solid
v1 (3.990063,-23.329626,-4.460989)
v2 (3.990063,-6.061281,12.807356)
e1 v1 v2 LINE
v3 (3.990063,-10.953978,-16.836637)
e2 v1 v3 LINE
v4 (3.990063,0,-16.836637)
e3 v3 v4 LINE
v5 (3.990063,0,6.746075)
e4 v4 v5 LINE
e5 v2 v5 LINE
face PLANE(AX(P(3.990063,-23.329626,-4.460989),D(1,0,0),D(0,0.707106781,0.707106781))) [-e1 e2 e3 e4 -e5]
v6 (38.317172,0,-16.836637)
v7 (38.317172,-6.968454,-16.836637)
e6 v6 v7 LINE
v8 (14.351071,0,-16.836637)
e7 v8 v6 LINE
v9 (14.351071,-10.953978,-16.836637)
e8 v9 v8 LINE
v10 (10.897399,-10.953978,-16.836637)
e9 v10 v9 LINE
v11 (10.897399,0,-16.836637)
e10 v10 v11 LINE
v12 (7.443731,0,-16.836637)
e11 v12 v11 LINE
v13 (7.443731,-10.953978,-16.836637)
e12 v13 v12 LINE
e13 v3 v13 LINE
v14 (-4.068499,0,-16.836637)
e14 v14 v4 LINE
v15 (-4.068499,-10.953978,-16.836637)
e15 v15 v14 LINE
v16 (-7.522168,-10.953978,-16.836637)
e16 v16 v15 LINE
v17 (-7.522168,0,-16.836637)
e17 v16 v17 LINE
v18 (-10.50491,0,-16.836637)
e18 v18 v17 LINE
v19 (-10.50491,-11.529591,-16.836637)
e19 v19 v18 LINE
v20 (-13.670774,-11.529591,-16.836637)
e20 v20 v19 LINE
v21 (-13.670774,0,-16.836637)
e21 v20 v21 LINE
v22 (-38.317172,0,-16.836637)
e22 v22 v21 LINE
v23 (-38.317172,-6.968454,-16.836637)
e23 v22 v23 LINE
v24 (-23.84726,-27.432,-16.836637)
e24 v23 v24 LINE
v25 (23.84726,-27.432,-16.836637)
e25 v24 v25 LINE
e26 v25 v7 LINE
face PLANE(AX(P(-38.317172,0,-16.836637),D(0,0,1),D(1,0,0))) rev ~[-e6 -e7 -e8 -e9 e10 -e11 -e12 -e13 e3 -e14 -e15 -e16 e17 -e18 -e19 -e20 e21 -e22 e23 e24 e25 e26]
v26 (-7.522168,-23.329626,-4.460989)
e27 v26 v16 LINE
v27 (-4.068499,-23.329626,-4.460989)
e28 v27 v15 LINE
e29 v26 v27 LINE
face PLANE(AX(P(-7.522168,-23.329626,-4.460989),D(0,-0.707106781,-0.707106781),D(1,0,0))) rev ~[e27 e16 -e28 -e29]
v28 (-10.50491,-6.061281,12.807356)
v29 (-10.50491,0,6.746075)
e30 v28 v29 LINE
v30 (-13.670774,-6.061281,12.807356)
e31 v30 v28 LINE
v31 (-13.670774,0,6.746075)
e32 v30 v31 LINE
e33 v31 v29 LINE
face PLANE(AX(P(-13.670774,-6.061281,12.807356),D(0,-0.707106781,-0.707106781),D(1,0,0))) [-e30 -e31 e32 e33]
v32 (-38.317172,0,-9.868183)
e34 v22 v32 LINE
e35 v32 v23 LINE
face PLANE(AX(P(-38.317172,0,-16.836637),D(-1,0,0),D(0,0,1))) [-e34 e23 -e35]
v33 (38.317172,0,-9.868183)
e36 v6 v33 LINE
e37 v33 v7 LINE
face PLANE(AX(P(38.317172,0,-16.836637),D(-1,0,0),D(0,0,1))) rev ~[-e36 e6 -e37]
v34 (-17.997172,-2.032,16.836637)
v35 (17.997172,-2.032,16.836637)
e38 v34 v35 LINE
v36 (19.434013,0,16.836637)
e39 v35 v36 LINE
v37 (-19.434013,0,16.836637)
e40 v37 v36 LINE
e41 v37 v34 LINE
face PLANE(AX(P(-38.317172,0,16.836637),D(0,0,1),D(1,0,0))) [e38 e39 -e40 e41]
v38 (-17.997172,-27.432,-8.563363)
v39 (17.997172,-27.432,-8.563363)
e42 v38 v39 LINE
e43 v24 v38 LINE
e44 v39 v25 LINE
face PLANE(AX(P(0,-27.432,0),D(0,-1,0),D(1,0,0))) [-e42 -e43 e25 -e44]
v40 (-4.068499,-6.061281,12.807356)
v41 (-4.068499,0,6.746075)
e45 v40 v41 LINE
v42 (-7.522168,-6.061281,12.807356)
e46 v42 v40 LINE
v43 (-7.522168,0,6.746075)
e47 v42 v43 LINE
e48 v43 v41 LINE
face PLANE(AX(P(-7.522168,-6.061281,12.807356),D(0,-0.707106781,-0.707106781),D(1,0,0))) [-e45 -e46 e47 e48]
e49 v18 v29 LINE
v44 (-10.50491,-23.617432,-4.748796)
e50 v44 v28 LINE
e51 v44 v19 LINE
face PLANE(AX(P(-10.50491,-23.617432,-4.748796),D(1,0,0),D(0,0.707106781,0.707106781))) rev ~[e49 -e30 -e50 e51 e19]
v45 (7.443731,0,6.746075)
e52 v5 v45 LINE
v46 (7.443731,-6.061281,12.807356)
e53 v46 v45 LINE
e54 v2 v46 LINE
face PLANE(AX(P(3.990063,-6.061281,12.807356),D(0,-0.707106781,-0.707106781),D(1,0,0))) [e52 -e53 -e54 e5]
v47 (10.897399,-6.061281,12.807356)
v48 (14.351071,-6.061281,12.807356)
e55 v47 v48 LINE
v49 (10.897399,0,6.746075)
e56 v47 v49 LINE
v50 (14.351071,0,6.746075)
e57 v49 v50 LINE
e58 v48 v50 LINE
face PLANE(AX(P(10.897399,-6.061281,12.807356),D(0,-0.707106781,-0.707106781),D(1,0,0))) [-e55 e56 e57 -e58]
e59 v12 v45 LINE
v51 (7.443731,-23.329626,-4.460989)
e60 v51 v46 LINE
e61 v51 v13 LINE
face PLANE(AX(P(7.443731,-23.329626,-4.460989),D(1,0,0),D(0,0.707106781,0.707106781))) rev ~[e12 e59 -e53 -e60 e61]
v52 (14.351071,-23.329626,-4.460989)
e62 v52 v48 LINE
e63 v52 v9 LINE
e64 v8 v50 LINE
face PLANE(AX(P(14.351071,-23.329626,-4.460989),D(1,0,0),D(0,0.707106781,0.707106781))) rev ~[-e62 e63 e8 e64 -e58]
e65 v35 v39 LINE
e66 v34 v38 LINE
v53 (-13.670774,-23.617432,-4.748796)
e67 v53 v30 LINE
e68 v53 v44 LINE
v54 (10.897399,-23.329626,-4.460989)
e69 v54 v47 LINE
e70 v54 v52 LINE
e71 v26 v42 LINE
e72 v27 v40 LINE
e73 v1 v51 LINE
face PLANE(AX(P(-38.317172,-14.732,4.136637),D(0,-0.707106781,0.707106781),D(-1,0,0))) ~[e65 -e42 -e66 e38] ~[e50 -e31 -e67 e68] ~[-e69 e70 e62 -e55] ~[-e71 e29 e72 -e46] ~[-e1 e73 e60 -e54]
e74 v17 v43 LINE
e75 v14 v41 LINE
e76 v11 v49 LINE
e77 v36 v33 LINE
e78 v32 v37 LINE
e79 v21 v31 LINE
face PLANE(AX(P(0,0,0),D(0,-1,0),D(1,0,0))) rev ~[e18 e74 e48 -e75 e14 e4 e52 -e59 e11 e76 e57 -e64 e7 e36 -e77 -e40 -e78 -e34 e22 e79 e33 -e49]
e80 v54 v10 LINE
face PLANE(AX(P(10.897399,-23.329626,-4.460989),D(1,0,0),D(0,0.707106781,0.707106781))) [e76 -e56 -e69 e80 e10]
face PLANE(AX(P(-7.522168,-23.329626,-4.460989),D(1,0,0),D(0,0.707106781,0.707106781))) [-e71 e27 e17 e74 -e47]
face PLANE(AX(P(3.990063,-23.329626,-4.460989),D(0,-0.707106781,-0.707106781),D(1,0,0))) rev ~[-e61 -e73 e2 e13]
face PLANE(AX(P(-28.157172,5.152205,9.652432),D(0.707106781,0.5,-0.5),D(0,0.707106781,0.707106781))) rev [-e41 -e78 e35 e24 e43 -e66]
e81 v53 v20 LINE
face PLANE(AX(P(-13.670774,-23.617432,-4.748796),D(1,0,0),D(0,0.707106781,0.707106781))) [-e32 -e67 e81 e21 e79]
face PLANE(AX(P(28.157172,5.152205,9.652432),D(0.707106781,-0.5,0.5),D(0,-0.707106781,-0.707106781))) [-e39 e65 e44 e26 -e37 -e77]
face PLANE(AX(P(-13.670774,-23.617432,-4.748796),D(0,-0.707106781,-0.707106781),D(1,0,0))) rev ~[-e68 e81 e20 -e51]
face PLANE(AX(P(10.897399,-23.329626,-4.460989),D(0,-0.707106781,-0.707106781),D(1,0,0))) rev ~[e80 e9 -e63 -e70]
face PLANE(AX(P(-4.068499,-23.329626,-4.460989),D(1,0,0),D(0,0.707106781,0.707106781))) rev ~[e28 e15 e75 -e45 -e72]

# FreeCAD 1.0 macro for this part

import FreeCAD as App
import Part
import Sketcher
Q = App.Units.Quantity


def edges_at(feature, points):
    """Names of the edges that pass closest to the given points."""
    edges = feature.Shape.Edges
    near = lambda p: min(range(len(edges)), key=lambda i: edges[i].distToShape(Part.Vertex(*p))[0])
    return sorted({f"Edge{near(p) + 1}" for p in points})

doc = App.newDocument("Part")
params = doc.addObject("Spreadsheet::Sheet", "Params")
for row, (alias, value) in enumerate([
    ("pad1_length", "1.08 in"),
    ("chamfer_size", "1 in"),
    ("chamfer2_size", "0.8 in"),
    ("pocket1_length", "1 in"),
    ("pocket2_length", "1 in"),
    ("pocket3_length", "1 in"),
    ("pocket4_length", "1 in"),
], start=1):
    params.set(f"A{row}", alias)
    params.set(f"B{row}", "=" + value)
    params.setAlias(f"B{row}", alias)

body = doc.addObject("PartDesign::Body", "Body")

sketch1 = body.newObject("Sketcher::SketchObject", "Sketch")
sketch1.AttachmentSupport = (doc.getObject("XZ_Plane"), [""])
sketch1.MapMode = "FlatFace"
sketch1.addGeometry(Part.LineSegment(App.Vector(-38, 17, 0), App.Vector(-38, -17, 0)), False)
sketch1.addGeometry(Part.LineSegment(App.Vector(-38, -17, 0), App.Vector(38, -17, 0)), False)
sketch1.addGeometry(Part.LineSegment(App.Vector(38, -17, 0), App.Vector(38, 17, 0)), False)
sketch1.addGeometry(Part.LineSegment(App.Vector(38, 17, 0), App.Vector(-38, 17, 0)), False)
sketch1.addConstraint(Sketcher.Constraint("Coincident", 0, 2, 1, 1))
sketch1.addConstraint(Sketcher.Constraint("Coincident", 1, 2, 2, 1))
sketch1.addConstraint(Sketcher.Constraint("Coincident", 2, 2, 3, 1))
sketch1.addConstraint(Sketcher.Constraint("Coincident", 3, 2, 0, 1))
sketch1.addConstraint(Sketcher.Constraint("Vertical", 0))
sketch1.addConstraint(Sketcher.Constraint("Horizontal", 1))
sketch1.addConstraint(Sketcher.Constraint("Vertical", 2))
sketch1.addConstraint(Sketcher.Constraint("Horizontal", 3))
sketch1.addConstraint(Sketcher.Constraint("Symmetric", 0, 2, 2, 2, -1, 1))
sketch1.addConstraint(Sketcher.Constraint("DistanceX", 1, 1, 1, 2, Q("3.0171002 in")))
sketch1.addConstraint(Sketcher.Constraint("DistanceY", 0, 2, 0, 1, 33.673273))
pad1 = body.newObject("PartDesign::Pad", "Pad")
pad1.Profile = sketch1
pad1.setExpression("Length", "Params.pad1_length")
doc.recompute()

chamfer = body.newObject("PartDesign::Chamfer", "Chamfer")
chamfer.Base = (pad1, edges_at(pad1, [(0, -27.432, 16.837)]))
chamfer.setExpression("Size", "Params.chamfer_size")
doc.recompute()

chamfer2 = body.newObject("PartDesign::Chamfer", "Chamfer001")
chamfer2.Base = (chamfer, edges_at(chamfer, [(-38.317, -14.732, 4.137), (38.317, -14.732, 4.137)]))
chamfer2.setExpression("Size", "Params.chamfer2_size")

sketch2 = body.newObject("Sketcher::SketchObject", "Sketch001")
sketch2.Placement = App.Placement(App.Vector(0, -9.434318, 9.434318), App.Rotation(App.Vector(1, 0, 0), App.Vector(0, 0.707106781, 0.707106781), App.Vector(0, -0.707106781, 0.707106781), "ZXY"))
sketch2.addGeometry(Part.LineSegment(App.Vector(-13.7, 4.8, 0), App.Vector(-13.7, -20.1, 0)), False)
sketch2.addGeometry(Part.LineSegment(App.Vector(-13.7, -20.1, 0), App.Vector(-10.5, -20.1, 0)), False)
sketch2.addGeometry(Part.LineSegment(App.Vector(-10.5, -20.1, 0), App.Vector(-10.5, 4.8, 0)), False)
sketch2.addGeometry(Part.LineSegment(App.Vector(-10.5, 4.8, 0), App.Vector(-13.7, 4.8, 0)), False)
sketch2.addConstraint(Sketcher.Constraint("Coincident", 0, 2, 1, 1))
sketch2.addConstraint(Sketcher.Constraint("Coincident", 1, 2, 2, 1))
sketch2.addConstraint(Sketcher.Constraint("Coincident", 2, 2, 3, 1))
sketch2.addConstraint(Sketcher.Constraint("Coincident", 3, 2, 0, 1))
sketch2.addConstraint(Sketcher.Constraint("Vertical", 0))
sketch2.addConstraint(Sketcher.Constraint("Horizontal", 1))
sketch2.addConstraint(Sketcher.Constraint("Vertical", 2))
sketch2.addConstraint(Sketcher.Constraint("Horizontal", 3))
sketch2.addConstraint(Sketcher.Constraint("DistanceX", 1, 1, 1, 2, 3.165864))
sketch2.addConstraint(Sketcher.Constraint("DistanceY", 0, 2, 0, 1, 24.828148))
sketch2.addConstraint(Sketcher.Constraint("DistanceX", 1, 2, -1, 1, 10.50491))
sketch2.addConstraint(Sketcher.Constraint("DistanceY", 0, 2, -1, 1, 20.057952))
pocket1 = body.newObject("PartDesign::Pocket", "Pocket")
pocket1.Profile = sketch2
pocket1.setExpression("Length", "Params.pocket1_length")

sketch3 = body.newObject("Sketcher::SketchObject", "Sketch002")
sketch3.Placement = App.Placement(App.Vector(0, -9.434318, 9.434318), App.Rotation(App.Vector(1, 0, 0), App.Vector(0, 0.707106781, 0.707106781), App.Vector(0, -0.707106781, 0.707106781), "ZXY"))
sketch3.addGeometry(Part.LineSegment(App.Vector(-7.5, 4.8, 0), App.Vector(-7.5, -19.7, 0)), False)
sketch3.addGeometry(Part.LineSegment(App.Vector(-7.5, -19.7, 0), App.Vector(-4.1, -19.7, 0)), False)
sketch3.addGeometry(Part.LineSegment(App.Vector(-4.1, -19.7, 0), App.Vector(-4.1, 4.8, 0)), False)
sketch3.addGeometry(Part.LineSegment(App.Vector(-4.1, 4.8, 0), App.Vector(-7.5, 4.8, 0)), False)
sketch3.addConstraint(Sketcher.Constraint("Coincident", 0, 2, 1, 1))
sketch3.addConstraint(Sketcher.Constraint("Coincident", 1, 2, 2, 1))
sketch3.addConstraint(Sketcher.Constraint("Coincident", 2, 2, 3, 1))
sketch3.addConstraint(Sketcher.Constraint("Coincident", 3, 2, 0, 1))
sketch3.addConstraint(Sketcher.Constraint("Vertical", 0))
sketch3.addConstraint(Sketcher.Constraint("Horizontal", 1))
sketch3.addConstraint(Sketcher.Constraint("Vertical", 2))
sketch3.addConstraint(Sketcher.Constraint("Horizontal", 3))
sketch3.addConstraint(Sketcher.Constraint("DistanceX", 1, 1, 1, 2, 3.453668))
sketch3.addConstraint(Sketcher.Constraint("DistanceX", 1, 2, -1, 1, 4.068499))
sketch3.addConstraint(Sketcher.Constraint("DistanceY", 0, 2, 0, 1, 24.421128))
sketch3.addConstraint(Sketcher.Constraint("DistanceY", 0, 2, -1, 1, 19.650932))
pocket2 = body.newObject("PartDesign::Pocket", "Pocket001")
pocket2.Profile = sketch3
pocket2.setExpression("Length", "Params.pocket2_length")

sketch4 = body.newObject("Sketcher::SketchObject", "Sketch003")
sketch4.Placement = App.Placement(App.Vector(0, -9.434318, 9.434318), App.Rotation(App.Vector(1, 0, 0), App.Vector(0, 0.707106781, 0.707106781), App.Vector(0, -0.707106781, 0.707106781), "ZXY"))
sketch4.addGeometry(Part.LineSegment(App.Vector(10.9, 4.8, 0), App.Vector(10.9, -19.7, 0)), False)
sketch4.addGeometry(Part.LineSegment(App.Vector(10.9, -19.7, 0), App.Vector(14.4, -19.7, 0)), False)
sketch4.addGeometry(Part.LineSegment(App.Vector(14.4, -19.7, 0), App.Vector(14.4, 4.8, 0)), False)
sketch4.addGeometry(Part.LineSegment(App.Vector(14.4, 4.8, 0), App.Vector(10.9, 4.8, 0)), False)
sketch4.addConstraint(Sketcher.Constraint("Coincident", 0, 2, 1, 1))
sketch4.addConstraint(Sketcher.Constraint("Coincident", 1, 2, 2, 1))
sketch4.addConstraint(Sketcher.Constraint("Coincident", 2, 2, 3, 1))
sketch4.addConstraint(Sketcher.Constraint("Coincident", 3, 2, 0, 1))
sketch4.addConstraint(Sketcher.Constraint("Vertical", 0))
sketch4.addConstraint(Sketcher.Constraint("Horizontal", 1))
sketch4.addConstraint(Sketcher.Constraint("Vertical", 2))
sketch4.addConstraint(Sketcher.Constraint("Horizontal", 3))
sketch4.addConstraint(Sketcher.Constraint("DistanceX", 1, 1, 1, 2, 3.453672))
sketch4.addConstraint(Sketcher.Constraint("DistanceX", -1, 1, 0, 2, 10.897399))
sketch4.addConstraint(Sketcher.Constraint("DistanceY", 0, 2, 0, 1, 24.421128))
sketch4.addConstraint(Sketcher.Constraint("DistanceY", 0, 2, -1, 1, 19.650932))
pocket3 = body.newObject("PartDesign::Pocket", "Pocket002")
pocket3.Profile = sketch4
pocket3.setExpression("Length", "Params.pocket3_length")

sketch5 = body.newObject("Sketcher::SketchObject", "Sketch004")
sketch5.Placement = App.Placement(App.Vector(0, -9.434318, 9.434318), App.Rotation(App.Vector(1, 0, 0), App.Vector(0, 0.707106781, 0.707106781), App.Vector(0, -0.707106781, 0.707106781), "ZXY"))
sketch5.addGeometry(Part.LineSegment(App.Vector(4, 4.8, 0), App.Vector(4, -19.7, 0)), False)
sketch5.addGeometry(Part.LineSegment(App.Vector(4, -19.7, 0), App.Vector(7.4, -19.7, 0)), False)
sketch5.addGeometry(Part.LineSegment(App.Vector(7.4, -19.7, 0), App.Vector(7.4, 4.8, 0)), False)
sketch5.addGeometry(Part.LineSegment(App.Vector(7.4, 4.8, 0), App.Vector(4, 4.8, 0)), False)
sketch5.addConstraint(Sketcher.Constraint("Coincident", 0, 2, 1, 1))
sketch5.addConstraint(Sketcher.Constraint("Coincident", 1, 2, 2, 1))
sketch5.addConstraint(Sketcher.Constraint("Coincident", 2, 2, 3, 1))
sketch5.addConstraint(Sketcher.Constraint("Coincident", 3, 2, 0, 1))
sketch5.addConstraint(Sketcher.Constraint("Vertical", 0))
sketch5.addConstraint(Sketcher.Constraint("Horizontal", 1))
sketch5.addConstraint(Sketcher.Constraint("Vertical", 2))
sketch5.addConstraint(Sketcher.Constraint("Horizontal", 3))
sketch5.addConstraint(Sketcher.Constraint("DistanceX", 1, 1, 1, 2, 3.453669))
sketch5.addConstraint(Sketcher.Constraint("DistanceY", 0, 2, 0, 1, 24.421128))
sketch5.addConstraint(Sketcher.Constraint("DistanceX", -1, 1, 1, 2, 7.443731))
sketch5.addConstraint(Sketcher.Constraint("DistanceY", 0, 2, -1, 1, 19.650932))
pocket4 = body.newObject("PartDesign::Pocket", "Pocket003")
pocket4.Profile = sketch5
pocket4.setExpression("Length", "Params.pocket4_length")

doc.recompute()
